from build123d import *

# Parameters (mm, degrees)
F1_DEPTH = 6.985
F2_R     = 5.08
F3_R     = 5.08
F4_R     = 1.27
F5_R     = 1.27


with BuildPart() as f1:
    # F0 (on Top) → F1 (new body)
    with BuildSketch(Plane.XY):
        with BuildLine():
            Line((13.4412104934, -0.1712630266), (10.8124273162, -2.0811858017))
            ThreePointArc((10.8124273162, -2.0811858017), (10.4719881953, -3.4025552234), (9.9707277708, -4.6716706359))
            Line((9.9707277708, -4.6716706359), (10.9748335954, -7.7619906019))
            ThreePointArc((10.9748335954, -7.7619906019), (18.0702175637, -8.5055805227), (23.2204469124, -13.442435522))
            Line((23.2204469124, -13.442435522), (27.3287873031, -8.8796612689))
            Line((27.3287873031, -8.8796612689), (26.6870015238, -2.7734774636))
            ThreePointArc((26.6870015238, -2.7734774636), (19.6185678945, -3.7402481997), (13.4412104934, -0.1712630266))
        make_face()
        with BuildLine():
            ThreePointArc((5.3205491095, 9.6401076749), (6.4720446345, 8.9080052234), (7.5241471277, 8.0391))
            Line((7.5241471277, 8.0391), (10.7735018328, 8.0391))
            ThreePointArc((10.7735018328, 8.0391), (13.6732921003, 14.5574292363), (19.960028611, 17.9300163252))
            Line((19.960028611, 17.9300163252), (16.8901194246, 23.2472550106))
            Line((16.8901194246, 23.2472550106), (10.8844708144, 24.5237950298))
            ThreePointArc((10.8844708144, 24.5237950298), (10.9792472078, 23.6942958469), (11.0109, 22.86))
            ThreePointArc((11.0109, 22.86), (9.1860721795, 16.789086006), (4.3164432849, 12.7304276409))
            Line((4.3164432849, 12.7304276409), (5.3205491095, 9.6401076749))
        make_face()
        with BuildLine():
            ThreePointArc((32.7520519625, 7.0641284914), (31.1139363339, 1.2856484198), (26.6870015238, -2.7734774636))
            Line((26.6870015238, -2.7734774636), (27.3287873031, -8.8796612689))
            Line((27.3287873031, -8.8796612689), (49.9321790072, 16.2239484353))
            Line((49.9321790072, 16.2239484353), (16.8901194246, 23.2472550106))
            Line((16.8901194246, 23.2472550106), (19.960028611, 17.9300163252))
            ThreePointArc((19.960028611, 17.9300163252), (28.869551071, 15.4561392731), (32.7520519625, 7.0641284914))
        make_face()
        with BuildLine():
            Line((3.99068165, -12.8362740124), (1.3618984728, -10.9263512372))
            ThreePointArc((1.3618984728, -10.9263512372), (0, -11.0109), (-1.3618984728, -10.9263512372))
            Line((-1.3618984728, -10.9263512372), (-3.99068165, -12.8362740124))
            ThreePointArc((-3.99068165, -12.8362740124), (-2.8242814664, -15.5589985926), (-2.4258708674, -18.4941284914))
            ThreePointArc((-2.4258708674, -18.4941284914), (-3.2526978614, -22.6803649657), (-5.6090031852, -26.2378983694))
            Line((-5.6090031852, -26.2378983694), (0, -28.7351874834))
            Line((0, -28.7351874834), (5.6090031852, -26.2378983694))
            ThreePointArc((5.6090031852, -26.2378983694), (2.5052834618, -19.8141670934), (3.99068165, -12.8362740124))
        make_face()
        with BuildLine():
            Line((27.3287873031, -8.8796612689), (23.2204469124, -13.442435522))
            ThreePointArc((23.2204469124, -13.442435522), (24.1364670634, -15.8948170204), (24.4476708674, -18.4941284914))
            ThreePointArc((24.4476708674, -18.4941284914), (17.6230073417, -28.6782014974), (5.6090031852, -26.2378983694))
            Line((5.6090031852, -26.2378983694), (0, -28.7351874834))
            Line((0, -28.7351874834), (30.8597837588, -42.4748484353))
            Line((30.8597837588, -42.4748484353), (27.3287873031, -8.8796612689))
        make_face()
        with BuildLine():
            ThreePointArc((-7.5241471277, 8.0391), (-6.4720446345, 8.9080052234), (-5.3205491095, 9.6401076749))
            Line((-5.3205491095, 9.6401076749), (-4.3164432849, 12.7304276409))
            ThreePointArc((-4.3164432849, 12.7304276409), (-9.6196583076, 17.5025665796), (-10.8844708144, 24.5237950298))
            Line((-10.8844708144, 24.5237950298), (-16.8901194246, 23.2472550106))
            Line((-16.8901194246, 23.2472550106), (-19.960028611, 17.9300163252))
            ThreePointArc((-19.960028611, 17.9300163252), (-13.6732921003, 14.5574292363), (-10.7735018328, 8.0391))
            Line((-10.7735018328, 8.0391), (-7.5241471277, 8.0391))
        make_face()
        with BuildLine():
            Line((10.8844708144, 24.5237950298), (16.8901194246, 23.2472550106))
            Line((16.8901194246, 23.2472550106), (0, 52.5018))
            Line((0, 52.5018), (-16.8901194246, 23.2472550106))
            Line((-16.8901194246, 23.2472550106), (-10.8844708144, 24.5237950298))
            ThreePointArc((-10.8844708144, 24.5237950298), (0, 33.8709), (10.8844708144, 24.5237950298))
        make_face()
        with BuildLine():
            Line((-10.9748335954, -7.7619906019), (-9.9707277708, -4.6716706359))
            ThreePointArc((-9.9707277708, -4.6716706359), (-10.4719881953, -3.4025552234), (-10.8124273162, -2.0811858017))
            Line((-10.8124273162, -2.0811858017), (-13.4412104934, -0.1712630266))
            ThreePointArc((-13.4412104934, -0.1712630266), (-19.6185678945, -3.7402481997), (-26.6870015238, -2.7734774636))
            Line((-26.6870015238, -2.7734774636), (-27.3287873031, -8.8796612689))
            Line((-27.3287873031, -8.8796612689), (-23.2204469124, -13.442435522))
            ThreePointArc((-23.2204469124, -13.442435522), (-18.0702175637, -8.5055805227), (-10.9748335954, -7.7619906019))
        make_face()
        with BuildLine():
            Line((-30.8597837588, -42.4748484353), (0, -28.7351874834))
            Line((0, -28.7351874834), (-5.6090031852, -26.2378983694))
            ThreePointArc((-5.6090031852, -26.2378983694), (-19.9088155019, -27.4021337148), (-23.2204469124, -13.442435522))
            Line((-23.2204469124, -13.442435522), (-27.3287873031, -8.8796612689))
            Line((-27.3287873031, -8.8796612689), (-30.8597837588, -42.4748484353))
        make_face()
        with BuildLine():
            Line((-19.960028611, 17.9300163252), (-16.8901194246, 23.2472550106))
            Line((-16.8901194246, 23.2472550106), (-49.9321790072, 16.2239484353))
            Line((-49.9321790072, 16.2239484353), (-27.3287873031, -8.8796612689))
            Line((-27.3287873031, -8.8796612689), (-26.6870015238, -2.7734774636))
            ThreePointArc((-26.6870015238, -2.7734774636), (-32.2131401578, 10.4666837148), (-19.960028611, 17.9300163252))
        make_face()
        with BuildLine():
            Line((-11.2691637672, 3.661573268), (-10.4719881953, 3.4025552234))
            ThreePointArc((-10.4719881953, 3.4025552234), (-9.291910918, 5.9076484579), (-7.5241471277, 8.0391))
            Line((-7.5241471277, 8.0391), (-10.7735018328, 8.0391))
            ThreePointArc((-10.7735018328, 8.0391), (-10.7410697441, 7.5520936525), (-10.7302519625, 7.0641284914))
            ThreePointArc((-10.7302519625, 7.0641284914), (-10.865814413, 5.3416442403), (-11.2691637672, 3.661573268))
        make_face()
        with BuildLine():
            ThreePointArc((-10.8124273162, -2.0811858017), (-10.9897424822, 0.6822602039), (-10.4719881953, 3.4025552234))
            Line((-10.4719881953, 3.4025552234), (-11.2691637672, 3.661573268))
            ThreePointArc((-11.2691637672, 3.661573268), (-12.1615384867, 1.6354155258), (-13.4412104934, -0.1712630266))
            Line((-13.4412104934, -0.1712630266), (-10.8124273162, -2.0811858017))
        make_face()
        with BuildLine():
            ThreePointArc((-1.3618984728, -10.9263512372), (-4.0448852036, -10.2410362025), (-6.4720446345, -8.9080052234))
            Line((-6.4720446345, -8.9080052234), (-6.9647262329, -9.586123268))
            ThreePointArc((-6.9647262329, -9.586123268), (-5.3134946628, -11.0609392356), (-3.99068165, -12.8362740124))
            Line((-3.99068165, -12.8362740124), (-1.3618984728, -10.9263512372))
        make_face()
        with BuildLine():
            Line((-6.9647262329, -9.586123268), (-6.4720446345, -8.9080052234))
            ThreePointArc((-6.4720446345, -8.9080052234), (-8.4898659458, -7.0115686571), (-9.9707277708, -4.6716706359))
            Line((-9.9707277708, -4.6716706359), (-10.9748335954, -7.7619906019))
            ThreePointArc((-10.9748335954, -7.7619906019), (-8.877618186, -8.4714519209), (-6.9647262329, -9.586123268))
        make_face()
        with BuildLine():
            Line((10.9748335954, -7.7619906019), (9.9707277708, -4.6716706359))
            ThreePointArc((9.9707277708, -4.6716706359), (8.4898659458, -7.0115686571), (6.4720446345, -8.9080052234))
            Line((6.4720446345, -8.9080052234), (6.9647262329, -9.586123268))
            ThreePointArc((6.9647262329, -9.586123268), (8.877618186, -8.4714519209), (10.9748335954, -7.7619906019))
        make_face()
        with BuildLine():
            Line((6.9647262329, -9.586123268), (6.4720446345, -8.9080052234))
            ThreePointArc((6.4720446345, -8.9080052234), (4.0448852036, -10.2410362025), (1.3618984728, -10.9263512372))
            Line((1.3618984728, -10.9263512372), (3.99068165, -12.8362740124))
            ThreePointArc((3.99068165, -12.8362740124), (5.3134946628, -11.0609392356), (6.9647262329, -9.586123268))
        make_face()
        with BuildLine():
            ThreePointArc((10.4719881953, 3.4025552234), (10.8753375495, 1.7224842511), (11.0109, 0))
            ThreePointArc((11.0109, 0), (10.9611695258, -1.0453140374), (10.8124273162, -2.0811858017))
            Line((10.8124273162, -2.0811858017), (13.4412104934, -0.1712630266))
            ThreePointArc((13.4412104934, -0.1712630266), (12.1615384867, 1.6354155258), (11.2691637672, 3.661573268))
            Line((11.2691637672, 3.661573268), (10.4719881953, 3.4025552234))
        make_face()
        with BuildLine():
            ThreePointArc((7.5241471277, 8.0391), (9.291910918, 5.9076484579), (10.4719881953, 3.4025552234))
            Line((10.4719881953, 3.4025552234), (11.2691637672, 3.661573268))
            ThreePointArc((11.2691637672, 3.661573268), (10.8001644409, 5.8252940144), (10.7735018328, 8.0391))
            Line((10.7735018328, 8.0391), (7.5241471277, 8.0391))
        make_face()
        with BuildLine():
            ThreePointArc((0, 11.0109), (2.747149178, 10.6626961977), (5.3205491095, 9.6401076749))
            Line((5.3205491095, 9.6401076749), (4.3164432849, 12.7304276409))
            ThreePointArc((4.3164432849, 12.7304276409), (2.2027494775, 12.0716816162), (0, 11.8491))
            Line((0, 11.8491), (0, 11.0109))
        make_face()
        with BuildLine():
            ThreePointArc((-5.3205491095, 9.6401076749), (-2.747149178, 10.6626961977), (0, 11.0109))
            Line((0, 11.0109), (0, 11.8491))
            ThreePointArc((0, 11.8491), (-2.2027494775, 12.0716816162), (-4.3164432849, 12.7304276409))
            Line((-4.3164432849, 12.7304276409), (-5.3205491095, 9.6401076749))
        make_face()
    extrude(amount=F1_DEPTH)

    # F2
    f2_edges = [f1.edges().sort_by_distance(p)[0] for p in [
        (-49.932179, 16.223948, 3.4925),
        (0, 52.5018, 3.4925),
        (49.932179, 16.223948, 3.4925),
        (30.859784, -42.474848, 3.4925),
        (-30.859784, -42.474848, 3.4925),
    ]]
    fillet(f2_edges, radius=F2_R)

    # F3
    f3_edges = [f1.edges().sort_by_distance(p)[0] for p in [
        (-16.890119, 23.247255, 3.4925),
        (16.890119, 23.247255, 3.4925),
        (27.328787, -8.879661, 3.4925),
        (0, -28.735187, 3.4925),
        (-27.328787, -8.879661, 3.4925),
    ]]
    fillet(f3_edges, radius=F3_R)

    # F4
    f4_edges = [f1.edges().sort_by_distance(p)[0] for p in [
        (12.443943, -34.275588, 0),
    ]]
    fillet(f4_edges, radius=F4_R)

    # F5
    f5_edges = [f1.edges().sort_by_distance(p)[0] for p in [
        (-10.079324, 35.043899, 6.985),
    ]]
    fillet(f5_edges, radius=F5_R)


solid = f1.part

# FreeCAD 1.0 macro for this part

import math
import FreeCAD as App
import Part
import Sketcher
Q = App.Units.Quantity


def edges_at(feature, points):
    """Names of the edges that pass closest to the given points."""
    edges = feature.Shape.Edges
    near = lambda p: min(range(len(edges)), key=lambda i: edges[i].distToShape(Part.Vertex(*p))[0])
    return sorted({f"Edge{near(p) + 1}" for p in points})

doc = App.newDocument("Part")
body = doc.addObject("PartDesign::Body", "Body")

# Sketch on XY plane
sketch1 = body.newObject("Sketcher::SketchObject", "Sketch")
sketch1.AttachmentSupport = (doc.getObject("XY_Plane"), [""])
sketch1.MapMode = "FlatFace"
sketch1.addGeometry([
    Part.LineSegment(App.Vector(-27.328787, -8.879661, 0), App.Vector(-30.859784, -42.474848, 0)),  # 0
    Part.LineSegment(App.Vector(-30.859784, -42.474848, 0), App.Vector(0, -28.735187, 0)),  # 1
    Part.LineSegment(App.Vector(0, -28.735187, 0), App.Vector(30.859784, -42.474848, 0)),  # 2
    Part.LineSegment(App.Vector(30.859784, -42.474848, 0), App.Vector(27.328787, -8.879661, 0)),  # 3
    Part.LineSegment(App.Vector(27.328787, -8.879661, 0), App.Vector(49.932179, 16.223948, 0)),  # 4
    Part.LineSegment(App.Vector(49.932179, 16.223948, 0), App.Vector(16.890119, 23.247255, 0)),  # 5
    Part.LineSegment(App.Vector(16.890119, 23.247255, 0), App.Vector(0, 52.5018, 0)),  # 6
    Part.LineSegment(App.Vector(0, 52.5018, 0), App.Vector(-16.890119, 23.247255, 0)),  # 7
    Part.LineSegment(App.Vector(-16.890119, 23.247255, 0), App.Vector(-49.932179, 16.223948, 0)),  # 8
    Part.LineSegment(App.Vector(-49.932179, 16.223948, 0), App.Vector(-27.328787, -8.879661, 0)),  # 9
    Part.ArcOfCircle(Part.Circle(App.Vector(0, 0, 0), App.Vector(0, 0, 1), 11.0109), math.radians(-25.104903), math.radians(-10.895097)),  # 10
    Part.ArcOfCircle(Part.Circle(App.Vector(0, 0, 0), App.Vector(0, 0, 1), 11.0109), math.radians(-54), math.radians(-25.104903)),  # 11
    Part.ArcOfCircle(Part.Circle(App.Vector(0, 0, 0), App.Vector(0, 0, 1), 11.0109), math.radians(-82.895097), math.radians(-54)),  # 12
    Part.ArcOfCircle(Part.Circle(App.Vector(0, 0, 0), App.Vector(0, 0, 1), 11.0109), math.radians(-97.104903), math.radians(-82.895097)),  # 13
    Part.ArcOfCircle(Part.Circle(App.Vector(0, 0, 0), App.Vector(0, 0, 1), 11.0109), math.radians(-126), math.radians(-97.104903)),  # 14
    Part.ArcOfCircle(Part.Circle(App.Vector(0, 0, 0), App.Vector(0, 0, 1), 11.0109), math.radians(-154.895097), math.radians(-126)),  # 15
    Part.ArcOfCircle(Part.Circle(App.Vector(0, 0, 0), App.Vector(0, 0, 1), 11.0109), math.radians(-169.104903), math.radians(-154.895097)),  # 16
    Part.ArcOfCircle(Part.Circle(App.Vector(0, 0, 0), App.Vector(0, 0, 1), 11.0109), math.radians(162), math.radians(190.895097)),  # 17
    Part.ArcOfCircle(Part.Circle(App.Vector(0, 0, 0), App.Vector(0, 0, 1), 11.0109), math.radians(133.104903), math.radians(162)),  # 18
    Part.ArcOfCircle(Part.Circle(App.Vector(0, 0, 0), App.Vector(0, 0, 1), 11.0109), math.radians(118.895097), math.radians(133.104903)),  # 19
    Part.ArcOfCircle(Part.Circle(App.Vector(0, 0, 0), App.Vector(0, 0, 1), 11.0109), math.radians(90), math.radians(118.895097)),  # 20
    Part.ArcOfCircle(Part.Circle(App.Vector(0, 0, 0), App.Vector(0, 0, 1), 11.0109), math.radians(61.104903), math.radians(90)),  # 21
    Part.ArcOfCircle(Part.Circle(App.Vector(0, 0, 0), App.Vector(0, 0, 1), 11.0109), math.radians(46.895097), math.radians(61.104903)),  # 22
    Part.ArcOfCircle(Part.Circle(App.Vector(0, 0, 0), App.Vector(0, 0, 1), 11.0109), math.radians(18), math.radians(46.895097)),  # 23
    Part.ArcOfCircle(Part.Circle(App.Vector(0, 0, 0), App.Vector(0, 0, 1), 11.0109), math.radians(0), math.radians(18)),  # 24
    Part.ArcOfCircle(Part.Circle(App.Vector(0, 0, 0), App.Vector(0, 0, 1), 11.0109), math.radians(-10.895097), math.radians(0)),  # 25
    Part.ArcOfCircle(Part.Circle(App.Vector(0, 22.86, 0), App.Vector(0, 0, 1), 11.0109), math.radians(171.309069), math.radians(246.920033)),  # 26
    Part.ArcOfCircle(Part.Circle(App.Vector(0, 22.86, 0), App.Vector(0, 0, 1), 11.0109), math.radians(8.690931), math.radians(171.309069)),  # 27
    Part.ArcOfCircle(Part.Circle(App.Vector(0, 22.86, 0), App.Vector(0, 0, 1), 11.0109), math.radians(0), math.radians(8.690931)),  # 28
    Part.ArcOfCircle(Part.Circle(App.Vector(0, 22.86, 0), App.Vector(0, 0, 1), 11.0109), math.radians(-66.920033), math.radians(0)),  # 29
    Part.ArcOfCircle(Part.Circle(App.Vector(0, 22.86, 0), App.Vector(0, 0, 1), 11.0109), math.radians(-90), math.radians(-66.920033)),  # 30
    Part.ArcOfCircle(Part.Circle(App.Vector(0, 22.86, 0), App.Vector(0, 0, 1), 11.0109), math.radians(-113.079967), math.radians(-90)),  # 31
    Part.ArcOfCircle(Part.Circle(App.Vector(21.741152, 7.064128, 0), App.Vector(0, 0, 1), 11.0109), math.radians(99.309069), math.radians(174.920033)),  # 32
    Part.ArcOfCircle(Part.Circle(App.Vector(21.741152, 7.064128, 0), App.Vector(0, 0, 1), 11.0109), math.radians(0), math.radians(99.309069)),  # 33
    Part.ArcOfCircle(Part.Circle(App.Vector(21.741152, 7.064128, 0), App.Vector(0, 0, 1), 11.0109), math.radians(-63.309069), math.radians(0)),  # 34
    Part.ArcOfCircle(Part.Circle(App.Vector(21.741152, 7.064128, 0), App.Vector(0, 0, 1), 11.0109), math.radians(-138.920033), math.radians(-63.309069)),  # 35
    Part.ArcOfCircle(Part.Circle(App.Vector(21.741152, 7.064128, 0), App.Vector(0, 0, 1), 11.0109), math.radians(-162), math.radians(-138.920033)),  # 36
    Part.ArcOfCircle(Part.Circle(App.Vector(21.741152, 7.064128, 0), App.Vector(0, 0, 1), 11.0109), math.radians(174.920033), math.radians(198)),  # 37
    Part.ArcOfCircle(Part.Circle(App.Vector(13.436771, -18.494128, 0), App.Vector(0, 0, 1), 11.0109), math.radians(102.920033), math.radians(126)),  # 38
    Part.ArcOfCircle(Part.Circle(App.Vector(13.436771, -18.494128, 0), App.Vector(0, 0, 1), 11.0109), math.radians(27.309069), math.radians(102.920033)),  # 39
    Part.ArcOfCircle(Part.Circle(App.Vector(13.436771, -18.494128, 0), App.Vector(0, 0, 1), 11.0109), math.radians(0), math.radians(27.309069)),  # 40
    Part.ArcOfCircle(Part.Circle(App.Vector(13.436771, -18.494128, 0), App.Vector(0, 0, 1), 11.0109), math.radians(-135.309069), math.radians(0)),  # 41
    Part.ArcOfCircle(Part.Circle(App.Vector(13.436771, -18.494128, 0), App.Vector(0, 0, 1), 11.0109), math.radians(149.079967), math.radians(224.690931)),  # 42
    Part.ArcOfCircle(Part.Circle(App.Vector(13.436771, -18.494128, 0), App.Vector(0, 0, 1), 11.0109), math.radians(126), math.radians(149.079967)),  # 43
    Part.ArcOfCircle(Part.Circle(App.Vector(-13.436771, -18.494128, 0), App.Vector(0, 0, 1), 11.0109), math.radians(30.920033), math.radians(54)),  # 44
    Part.ArcOfCircle(Part.Circle(App.Vector(-13.436771, -18.494128, 0), App.Vector(0, 0, 1), 11.0109), math.radians(0), math.radians(30.920033)),  # 45
    Part.ArcOfCircle(Part.Circle(App.Vector(-13.436771, -18.494128, 0), App.Vector(0, 0, 1), 11.0109), math.radians(-44.690931), math.radians(0)),  # 46
    Part.ArcOfCircle(Part.Circle(App.Vector(-13.436771, -18.494128, 0), App.Vector(0, 0, 1), 11.0109), math.radians(152.690931), math.radians(315.309069)),  # 47
    Part.ArcOfCircle(Part.Circle(App.Vector(-13.436771, -18.494128, 0), App.Vector(0, 0, 1), 11.0109), math.radians(77.079967), math.radians(152.690931)),  # 48
    Part.ArcOfCircle(Part.Circle(App.Vector(-13.436771, -18.494128, 0), App.Vector(0, 0, 1), 11.0109), math.radians(54), math.radians(77.079967)),  # 49
    Part.ArcOfCircle(Part.Circle(App.Vector(-21.741152, 7.064128, 0), App.Vector(0, 0, 1), 11.0109), math.radians(-116.690931), math.radians(-41.079967)),  # 50
    Part.ArcOfCircle(Part.Circle(App.Vector(-21.741152, 7.064128, 0), App.Vector(0, 0, 1), 11.0109), math.radians(80.690931), math.radians(243.309069)),  # 51
    Part.ArcOfCircle(Part.Circle(App.Vector(-21.741152, 7.064128, 0), App.Vector(0, 0, 1), 11.0109), math.radians(5.079967), math.radians(80.690931)),  # 52
    Part.ArcOfCircle(Part.Circle(App.Vector(-21.741152, 7.064128, 0), App.Vector(0, 0, 1), 11.0109), math.radians(0), math.radians(5.079967)),  # 53
    Part.ArcOfCircle(Part.Circle(App.Vector(-21.741152, 7.064128, 0), App.Vector(0, 0, 1), 11.0109), math.radians(-18), math.radians(0)),  # 54
    Part.ArcOfCircle(Part.Circle(App.Vector(-21.741152, 7.064128, 0), App.Vector(0, 0, 1), 11.0109), math.radians(-41.079967), math.radians(-18)),  # 55
], False)
sketch1.addConstraint([
    Sketcher.Constraint("Coincident", 0, 2, 1, 1),
    Sketcher.Constraint("Coincident", 1, 2, 2, 1),
    Sketcher.Constraint("Coincident", 2, 2, 3, 1),
    Sketcher.Constraint("Coincident", 3, 2, 4, 1),
    Sketcher.Constraint("Coincident", 4, 2, 5, 1),
    Sketcher.Constraint("Coincident", 5, 2, 6, 1),
    Sketcher.Constraint("Coincident", 6, 2, 7, 1),
    Sketcher.Constraint("Coincident", 7, 2, 8, 1),
    Sketcher.Constraint("Coincident", 8, 2, 9, 1),
    Sketcher.Constraint("Coincident", 9, 2, 0, 1),
    Sketcher.Constraint("Tangent", 10, 1, 11, 2),
    Sketcher.Constraint("Tangent", 11, 1, 12, 2),
    Sketcher.Constraint("Tangent", 12, 1, 13, 2),
    Sketcher.Constraint("Tangent", 13, 1, 14, 2),
    Sketcher.Constraint("Tangent", 14, 1, 15, 2),
    Sketcher.Constraint("Tangent", 15, 1, 16, 2),
    Sketcher.Constraint("Tangent", 16, 1, 17, 2),
    Sketcher.Constraint("Tangent", 17, 1, 18, 2),
    Sketcher.Constraint("Tangent", 18, 1, 19, 2),
    Sketcher.Constraint("Tangent", 19, 1, 20, 2),
    Sketcher.Constraint("Tangent", 20, 1, 21, 2),
    Sketcher.Constraint("Tangent", 21, 1, 22, 2),
    Sketcher.Constraint("Tangent", 22, 1, 23, 2),
    Sketcher.Constraint("Tangent", 23, 1, 24, 2),
    Sketcher.Constraint("Tangent", 24, 1, 25, 2),
    Sketcher.Constraint("Tangent", 25, 1, 10, 2),
    Sketcher.Constraint("Tangent", 26, 1, 27, 2),
    Sketcher.Constraint("Tangent", 27, 1, 28, 2),
    Sketcher.Constraint("Tangent", 28, 1, 29, 2),
    Sketcher.Constraint("Tangent", 29, 1, 30, 2),
    Sketcher.Constraint("Tangent", 30, 1, 31, 2),
    Sketcher.Constraint("Tangent", 31, 1, 26, 2),
    Sketcher.Constraint("Tangent", 32, 1, 33, 2),
    Sketcher.Constraint("Tangent", 33, 1, 34, 2),
    Sketcher.Constraint("Tangent", 34, 1, 35, 2),
    Sketcher.Constraint("Tangent", 35, 1, 36, 2),
    Sketcher.Constraint("Tangent", 36, 1, 37, 2),
    Sketcher.Constraint("Tangent", 37, 1, 32, 2),
    Sketcher.Constraint("Tangent", 38, 1, 39, 2),
    Sketcher.Constraint("Tangent", 39, 1, 40, 2),
    Sketcher.Constraint("Tangent", 40, 1, 41, 2),
    Sketcher.Constraint("Tangent", 41, 1, 42, 2),
    Sketcher.Constraint("Tangent", 42, 1, 43, 2),
    Sketcher.Constraint("Tangent", 43, 1, 38, 2),
    Sketcher.Constraint("Tangent", 44, 1, 45, 2),
    Sketcher.Constraint("Tangent", 45, 1, 46, 2),
    Sketcher.Constraint("Tangent", 46, 1, 47, 2),
    Sketcher.Constraint("Tangent", 47, 1, 48, 2),
    Sketcher.Constraint("Tangent", 48, 1, 49, 2),
    Sketcher.Constraint("Tangent", 49, 1, 44, 2),
    Sketcher.Constraint("Tangent", 50, 1, 51, 2),
    Sketcher.Constraint("Tangent", 51, 1, 52, 2),
    Sketcher.Constraint("Tangent", 52, 1, 53, 2),
    Sketcher.Constraint("Tangent", 53, 1, 54, 2),
    Sketcher.Constraint("Tangent", 54, 1, 55, 2),
    Sketcher.Constraint("Tangent", 55, 1, 50, 2),
    Sketcher.Constraint("Coincident", 10, 3, -1, 1),
    Sketcher.Constraint("Coincident", 12, 3, -1, 1),
    Sketcher.Constraint("Coincident", 14, 3, -1, 1),
    Sketcher.Constraint("Coincident", 16, 3, -1, 1),
    Sketcher.Constraint("Coincident", 18, 3, -1, 1),
    Sketcher.Constraint("Coincident", 20, 3, -1, 1),
    Sketcher.Constraint("Coincident", 22, 3, -1, 1),
    Sketcher.Constraint("Coincident", 28, 3, 26, 3),
    Sketcher.Constraint("Coincident", 34, 3, 32, 3),
    Sketcher.Constraint("Coincident", 40, 3, 38, 3),
    Sketcher.Constraint("Coincident", 46, 3, 44, 3),
    Sketcher.Constraint("Coincident", 52, 3, 50, 3),
    Sketcher.Constraint("Equal", 22, 23),
    Sketcher.Constraint("Equal", 25, 26),
    Sketcher.Constraint("Equal", 28, 29),
    Sketcher.Constraint("Equal", 31, 32),
    Sketcher.Constraint("Equal", 34, 35),
    Sketcher.Constraint("Equal", 37, 38),
    Sketcher.Constraint("Equal", 40, 41),
    Sketcher.Constraint("Equal", 43, 44),
    Sketcher.Constraint("Equal", 46, 47),
    Sketcher.Constraint("Equal", 49, 50),
    Sketcher.Constraint("Equal", 52, 53),
    Sketcher.Constraint("Symmetric", 38, 3, 44, 3, -2),
    Sketcher.Constraint("Symmetric", 32, 3, 50, 3, -2),
    Sketcher.Constraint("Symmetric", 0, 2, 2, 2, -2),
    Sketcher.Constraint("Symmetric", 5, 2, 7, 2, -2),
    Sketcher.Constraint("Symmetric", 4, 2, 8, 2, -2),
    Sketcher.Constraint("Symmetric", 3, 2, 9, 2, -2),
    Sketcher.Constraint("Symmetric", 26, 1, 27, 1, -2),
    Sketcher.Constraint("PointOnObject", 1, 2, -2),
    Sketcher.Constraint("PointOnObject", 6, 2, -2),
    Sketcher.Constraint("PointOnObject", 20, 1, -2),
    Sketcher.Constraint("PointOnObject", 24, 1, -1),
    Sketcher.Constraint("PointOnObject", 30, 1, -2),
    Sketcher.Constraint("Horizontal", 12, 1, 13, 1),
    Sketcher.Constraint("Horizontal", 11, 1, 14, 1),
    Sketcher.Constraint("Horizontal", 10, 1, 15, 1),
    Sketcher.Constraint("Horizontal", 19, 1, 21, 1),
    Sketcher.Constraint("Horizontal", 18, 1, 22, 1),
    Sketcher.Constraint("Horizontal", 17, 1, 23, 1),
    Sketcher.Constraint("Horizontal", 16, 1, 25, 1),
    Sketcher.Constraint("Horizontal", 31, 3, 28, 1),
    Sketcher.Constraint("Horizontal", 29, 1, 31, 1),
    Sketcher.Constraint("Horizontal", 55, 3, 33, 1),
    Sketcher.Constraint("Horizontal", 22, 1, 37, 1),
    Sketcher.Constraint("Horizontal", 49, 3, 40, 1),
    Sketcher.Constraint("Horizontal", 42, 1, 44, 1),
    Sketcher.Constraint("Horizontal", 40, 1, 45, 1),
    Sketcher.Constraint("Horizontal", 41, 1, 46, 1),
    Sketcher.Constraint("Horizontal", 39, 1, 47, 1),
    Sketcher.Constraint("Horizontal", 38, 1, 48, 1),
    Sketcher.Constraint("Horizontal", 43, 1, 49, 1),
    Sketcher.Constraint("Horizontal", 34, 1, 50, 1),
    Sketcher.Constraint("Horizontal", 32, 1, 51, 1),
    Sketcher.Constraint("Horizontal", 37, 1, 52, 1),
    Sketcher.Constraint("Horizontal", 33, 1, 53, 1),
    Sketcher.Constraint("Horizontal", 36, 1, 54, 1),
    Sketcher.Constraint("Horizontal", 35, 1, 55, 1),
    Sketcher.Constraint("Equal", 0, 1),
    Sketcher.Constraint("Equal", 3, 4),
    Sketcher.Constraint("Equal", 4, 5),
    Sketcher.Constraint("Equal", 5, 6),
    Sketcher.Constraint("Angle", 0, Q("-96 deg")),
    Sketcher.Constraint("Angle", 1, Q("24 deg")),
    Sketcher.Constraint("Angle", 4, Q("48 deg")),
    Sketcher.Constraint("Angle", 5, Q("168 deg")),
    Sketcher.Constraint("DistanceY", -1, 1, 26, 3, Q("0.9 in")),
    Sketcher.Constraint("Radius", 10, Q("0.4335 in")),
    Sketcher.Constraint("DistanceY", -1, 1, 6, 2, Q("2.067 in")),
    Sketcher.Constraint("DistanceY", -1, 1, 18, 1, Q("0.3165 in")),
    Sketcher.Constraint("DistanceX", -1, 1, 12, 1, 1.361898),
    Sketcher.Constraint("DistanceX", -1, 1, 34, 1, 26.687002),
    Sketcher.Constraint("DistanceX", -1, 1, 37, 1, 10.773502),
    Sketcher.Constraint("DistanceY", 41, 1, -1, 1, 26.237898),
    Sketcher.Constraint("Distance", 0, 33.780239),
    Sketcher.Constraint("DistanceX", -1, 1, 32, 3, 21.741152),
    Sketcher.Constraint("DistanceX", -1, 1, 38, 3, 13.436771),
    Sketcher.Constraint("DistanceY", 38, 3, -1, 1, 18.494128),
    Sketcher.Constraint("DistanceY", 10, 1, -1, 1, 4.671671),
    Sketcher.Constraint("DistanceX", 17, 1, -1, 1, 10.471988),
    Sketcher.Constraint("DistanceX", 19, 1, -1, 1, 5.320549),
    Sketcher.Constraint("DistanceX", 26, 1, -1, 1, 10.884471),
    Sketcher.Constraint("DistanceX", -1, 1, 32, 1, 19.960029),
    Sketcher.Constraint("DistanceX", -1, 1, 35, 1, 13.44121),
    Sketcher.Constraint("DistanceY", 38, 1, -1, 1, 7.761991),
    Sketcher.Constraint("DistanceX", -1, 1, 42, 1, 3.990682),
    Sketcher.Constraint("DistanceX", -1, 1, 11, 1, 6.472045),
    Sketcher.Constraint("DistanceX", 16, 1, -1, 1, 10.812427),
    Sketcher.Constraint("DistanceX", -1, 1, 29, 1, 4.316443),
    Sketcher.Constraint("DistanceX", -1, 1, 36, 1, 11.269164),
    Sketcher.Constraint("DistanceX", -1, 1, 39, 1, 23.220447),
    Sketcher.Constraint("DistanceX", -1, 1, 43, 1, 6.964726),
])
pad1 = body.newObject("PartDesign::Pad", "Pad")
pad1.Profile = sketch1
pad1.Length = Q("0.275 in")
doc.recompute()

fillet = body.newObject("PartDesign::Fillet", "Fillet")
fillet.Base = (pad1, edges_at(pad1, [
    (-49.932, 16.224, 3.493),
    (0, 52.502, 3.493),
    (49.932, 16.224, 3.493),
    (30.86, -42.475, 3.493),
    (-30.86, -42.475, 3.493),
]))
fillet.Radius = Q("0.2 in")
doc.recompute()

fillet2 = body.newObject("PartDesign::Fillet", "Fillet001")
fillet2.Base = (fillet, edges_at(fillet, [
    (-16.89, 23.247, 3.493),
    (16.89, 23.247, 3.493),
    (27.329, -8.88, 3.493),
    (0, -28.735, 3.493),
    (-27.329, -8.88, 3.493),
]))
fillet2.Radius = Q("0.2 in")
doc.recompute()

fillet3 = body.newObject("PartDesign::Fillet", "Fillet002")
fillet3.Base = (fillet2, edges_at(fillet2, [(12.444, -34.276, 0)]))
fillet3.Radius = Q("0.05 in")
doc.recompute()

fillet4 = body.newObject("PartDesign::Fillet", "Fillet003")
fillet4.Base = (fillet3, edges_at(fillet3, [(-10.079, 35.044, 6.985)]))
fillet4.Radius = Q("0.05 in")

doc.recompute()
